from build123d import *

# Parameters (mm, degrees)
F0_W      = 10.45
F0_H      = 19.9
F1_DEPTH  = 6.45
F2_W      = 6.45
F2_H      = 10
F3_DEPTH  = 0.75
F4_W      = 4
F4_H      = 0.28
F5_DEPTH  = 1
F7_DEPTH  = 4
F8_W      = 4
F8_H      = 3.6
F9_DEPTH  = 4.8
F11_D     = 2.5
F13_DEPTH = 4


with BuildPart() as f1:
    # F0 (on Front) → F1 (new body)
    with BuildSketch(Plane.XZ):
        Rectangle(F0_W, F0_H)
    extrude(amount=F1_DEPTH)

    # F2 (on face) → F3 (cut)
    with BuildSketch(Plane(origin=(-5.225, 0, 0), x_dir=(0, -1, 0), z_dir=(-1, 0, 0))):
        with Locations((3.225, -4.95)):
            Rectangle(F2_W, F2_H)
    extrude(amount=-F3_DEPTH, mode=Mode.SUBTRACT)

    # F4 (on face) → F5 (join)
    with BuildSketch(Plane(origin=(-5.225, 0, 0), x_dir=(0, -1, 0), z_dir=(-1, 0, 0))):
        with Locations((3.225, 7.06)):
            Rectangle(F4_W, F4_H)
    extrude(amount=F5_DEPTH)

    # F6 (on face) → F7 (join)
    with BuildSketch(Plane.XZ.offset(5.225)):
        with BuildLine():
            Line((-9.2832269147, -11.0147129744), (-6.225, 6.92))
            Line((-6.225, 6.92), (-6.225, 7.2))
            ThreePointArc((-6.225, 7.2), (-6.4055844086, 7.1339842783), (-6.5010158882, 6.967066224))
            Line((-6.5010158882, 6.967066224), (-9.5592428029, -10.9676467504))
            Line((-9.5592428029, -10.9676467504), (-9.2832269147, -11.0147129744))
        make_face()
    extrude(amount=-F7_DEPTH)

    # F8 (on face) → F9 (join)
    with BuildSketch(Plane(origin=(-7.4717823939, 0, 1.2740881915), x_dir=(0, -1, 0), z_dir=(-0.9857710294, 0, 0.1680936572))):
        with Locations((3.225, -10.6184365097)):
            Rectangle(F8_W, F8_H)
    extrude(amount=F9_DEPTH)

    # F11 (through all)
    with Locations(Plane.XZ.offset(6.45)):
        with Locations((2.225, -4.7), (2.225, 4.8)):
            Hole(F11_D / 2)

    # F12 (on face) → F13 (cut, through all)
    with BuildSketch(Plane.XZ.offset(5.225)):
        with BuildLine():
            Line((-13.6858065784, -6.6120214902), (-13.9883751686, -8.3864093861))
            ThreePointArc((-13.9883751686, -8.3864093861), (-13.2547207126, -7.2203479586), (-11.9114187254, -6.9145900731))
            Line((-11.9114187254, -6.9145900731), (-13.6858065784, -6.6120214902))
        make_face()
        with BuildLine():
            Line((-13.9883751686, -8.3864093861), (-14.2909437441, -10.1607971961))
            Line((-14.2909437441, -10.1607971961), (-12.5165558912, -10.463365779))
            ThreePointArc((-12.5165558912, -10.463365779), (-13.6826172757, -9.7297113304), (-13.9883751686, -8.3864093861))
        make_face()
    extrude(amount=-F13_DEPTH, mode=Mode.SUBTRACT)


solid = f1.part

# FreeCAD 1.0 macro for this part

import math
import FreeCAD as App
import Part
import Sketcher


def add_polygon(sketch, points):
    """Adds a closed chain of lines whose ends are joined by coincident constraints."""
    first, n = sketch.GeometryCount, len(points)
    for a, b in zip(points, points[1:] + points[:1]):
        sketch.addGeometry(Part.LineSegment(App.Vector(*a, 0), App.Vector(*b, 0)), False)
    for i in range(n):
        sketch.addConstraint(Sketcher.Constraint("Coincident", first + i, 2, first + (i + 1) % n, 1))

doc = App.newDocument("Part")
body = doc.addObject("PartDesign::Body", "Body")

# Sketch on XZ plane
sketch1 = body.newObject("Sketcher::SketchObject", "Sketch")
sketch1.AttachmentSupport = (doc.getObject("XZ_Plane"), [""])
sketch1.MapMode = "FlatFace"
add_polygon(sketch1, [(-5, 10), (-5, -10), (5, -10), (5, 10)])  # lines 0-3
sketch1.addConstraint([
    Sketcher.Constraint("Vertical", 0),
    Sketcher.Constraint("Horizontal", 1),
    Sketcher.Constraint("Vertical", 2),
    Sketcher.Constraint("Horizontal", 3),
    Sketcher.Constraint("Symmetric", 0, 2, 2, 2, -1, 1),
    Sketcher.Constraint("DistanceY", 0, 2, 0, 1, 19.9),
    Sketcher.Constraint("DistanceX", 1, 1, 1, 2, 10.45),
])
pad1 = body.newObject("PartDesign::Pad", "Pad")
pad1.Profile = sketch1
pad1.Length = 6.45

# Sketch on YZ plane
sketch2 = body.newObject("Sketcher::SketchObject", "Sketch001")
sketch2.AttachmentSupport = (doc.getObject("YZ_Plane"), [""])
sketch2.MapMode = "FlatFace"
sketch2.AttachmentOffset = App.Placement(App.Vector(0, 0, -5.225), App.Rotation())
add_polygon(sketch2, [(0, 0), (0, -10), (-6, -10), (-6, 0)])  # lines 0-3
sketch2.addConstraint([
    Sketcher.Constraint("Vertical", 0),
    Sketcher.Constraint("Horizontal", 1),
    Sketcher.Constraint("Vertical", 2),
    Sketcher.Constraint("Horizontal", 3),
    Sketcher.Constraint("PointOnObject", 0, 2, -2),
    Sketcher.Constraint("DistanceY", 0, 2, 0, 1, 10.0),
    Sketcher.Constraint("DistanceX", 1, 2, 1, 1, 6.45),
    Sketcher.Constraint("DistanceY", 0, 2, -1, 1, 9.95),
])
pocket1 = body.newObject("PartDesign::Pocket", "Pocket")
pocket1.Profile = sketch2
pocket1.Length = 0.75
pocket1.Reversed = True

# Sketch on YZ plane
sketch3 = body.newObject("Sketcher::SketchObject", "Sketch002")
sketch3.AttachmentSupport = (doc.getObject("YZ_Plane"), [""])
sketch3.MapMode = "FlatFace"
sketch3.AttachmentOffset = App.Placement(App.Vector(0, 0, -5.225), App.Rotation())
add_polygon(sketch3, [(-1.23, 7.2), (-1.23, 6.92), (-5.22, 6.92), (-5.22, 7.2)])  # lines 0-3
sketch3.addConstraint([
    Sketcher.Constraint("Vertical", 0),
    Sketcher.Constraint("Horizontal", 1),
    Sketcher.Constraint("Vertical", 2),
    Sketcher.Constraint("Horizontal", 3),
    Sketcher.Constraint("DistanceX", 1, 2, 1, 1, 4.0),
    Sketcher.Constraint("DistanceY", 0, 2, 0, 1, 0.28),
    Sketcher.Constraint("DistanceY", -1, 1, 2, 2, 7.2),
    Sketcher.Constraint("DistanceX", 0, 2, -1, 1, 1.225),
])
pad2 = body.newObject("PartDesign::Pad", "Pad001")
pad2.Profile = sketch3
pad2.Length = 1
pad2.Reversed = True

# Sketch on XZ plane
sketch4 = body.newObject("Sketcher::SketchObject", "Sketch003")
sketch4.AttachmentSupport = (doc.getObject("XZ_Plane"), [""])
sketch4.MapMode = "FlatFace"
sketch4.AttachmentOffset = App.Placement(App.Vector(0, 0, 5.225), App.Rotation())
sketch4.addGeometry([
    Part.LineSegment(App.Vector(-9.28, -11.01, 0), App.Vector(-6.22, 6.92, 0)),  # 0
    Part.LineSegment(App.Vector(-6.22, 6.92, 0), App.Vector(-6.22, 7.2, 0)),  # 1
    Part.ArcOfCircle(Part.Circle(App.Vector(-6.22, 6.92, 0), App.Vector(0, 0, 1), 0.28), math.radians(90), math.radians(170)),  # 2
    Part.LineSegment(App.Vector(-6.5, 6.97, 0), App.Vector(-9.56, -10.97, 0)),  # 3
    Part.LineSegment(App.Vector(-9.56, -10.97, 0), App.Vector(-9.28, -11.01, 0)),  # 4
], False)
sketch4.addConstraint([
    Sketcher.Constraint("Coincident", 0, 2, 1, 1),
    Sketcher.Constraint("Coincident", 1, 2, 2, 1),
    Sketcher.Constraint("Tangent", 2, 2, 3, 1),
    Sketcher.Constraint("Coincident", 3, 2, 4, 1),
    Sketcher.Constraint("Coincident", 4, 2, 0, 1),
    Sketcher.Constraint("Vertical", 1),
    Sketcher.Constraint("Coincident", 0, 2, 2, 3),
    Sketcher.Constraint("Parallel", 0, 3),
    Sketcher.Constraint("Perpendicular", 3, 4),
    Sketcher.Constraint("Radius", 2, 0.28),
    Sketcher.Constraint("DistanceY", -1, 1, 1, 2, 7.2),
    Sketcher.Constraint("DistanceX", 2, 3, -1, 1, 6.225),
    Sketcher.Constraint("Distance", 0, 18.193589),
    Sketcher.Constraint("DistanceX", 4, 2, 2, 2, 2.782211),
])
pad3 = body.newObject("PartDesign::Pad", "Pad002")
pad3.Profile = sketch4
pad3.Length = 4
pad3.Reversed = True

# Sketch on an angled plane
sketch5 = body.newObject("Sketcher::SketchObject", "Sketch004")
sketch5.Placement = App.Placement(App.Vector(-7.471782, 0, 1.274088), App.Rotation(App.Vector(0, -1, 0), App.Vector(0.168093657, 0, 0.985771029), App.Vector(-0.985771029, 0, 0.168093657), "ZXY"))
add_polygon(sketch5, [(1.2, -8.8), (1.2, -12.4), (5.2, -12.4), (5.2, -8.8)])  # lines 0-3
sketch5.addConstraint([
    Sketcher.Constraint("Vertical", 0),
    Sketcher.Constraint("Horizontal", 1),
    Sketcher.Constraint("Vertical", 2),
    Sketcher.Constraint("Horizontal", 3),
    Sketcher.Constraint("DistanceX", 1, 1, 1, 2, 4.0),
    Sketcher.Constraint("DistanceY", 0, 2, 0, 1, 3.6),
    Sketcher.Constraint("DistanceX", -1, 1, 0, 2, 1.225),
    Sketcher.Constraint("DistanceY", 0, 2, -1, 1, 12.418436),
])
pad4 = body.newObject("PartDesign::Pad", "Pad003")
pad4.Profile = sketch5
pad4.Length = 4.8

# Sketch on XZ plane
sketch6 = body.newObject("Sketcher::SketchObject", "Sketch005")
sketch6.AttachmentSupport = (doc.getObject("XZ_Plane"), [""])
sketch6.MapMode = "FlatFace"
sketch6.AttachmentOffset = App.Placement(App.Vector(0, 0, 6.45), App.Rotation())
sketch6.addGeometry([
    Part.Circle(App.Vector(2.2, -4.7, 0), App.Vector(0, 0, 1), 1.2),
    Part.Circle(App.Vector(2.2, 4.8, 0), App.Vector(0, 0, 1), 1.2),
], False)
sketch6.addConstraint([
    Sketcher.Constraint("Equal", 0, 1),
    Sketcher.Constraint("Vertical", 0, 3, 1, 3),
    Sketcher.Constraint("Diameter", 0, 2.5),
    Sketcher.Constraint("DistanceY", 0, 3, -1, 1, 4.7),
    Sketcher.Constraint("DistanceY", -1, 1, 1, 3, 4.8),
    Sketcher.Constraint("DistanceX", -1, 1, 0, 3, 2.225),
])
doc.recompute()
hole = body.newObject("PartDesign::Hole", "Hole")
hole.Profile = sketch6
hole.ThreadType = "None"
hole.Diameter = 2.5
hole.DepthType = "ThroughAll"

# Sketch on XZ plane
sketch7 = body.newObject("Sketcher::SketchObject", "Sketch006")
sketch7.AttachmentSupport = (doc.getObject("XZ_Plane"), [""])
sketch7.MapMode = "FlatFace"
sketch7.AttachmentOffset = App.Placement(App.Vector(0, 0, 5.225), App.Rotation())
sketch7.addGeometry([
    Part.LineSegment(App.Vector(-13.7, -6.6, 0), App.Vector(-14, -8.4, 0)),  # 0
    Part.ArcOfCircle(Part.Circle(App.Vector(-12.2, -8.7, 0), App.Vector(0, 0, 1), 1.8), math.radians(80), math.radians(170)),  # 1
    Part.LineSegment(App.Vector(-11.9, -6.9, 0), App.Vector(-13.7, -6.6, 0)),  # 2
    Part.LineSegment(App.Vector(-14, -8.4, 0), App.Vector(-14.3, -10.2, 0)),  # 3
    Part.LineSegment(App.Vector(-14.3, -10.2, 0), App.Vector(-12.5, -10.5, 0)),  # 4
    Part.ArcOfCircle(Part.Circle(App.Vector(-12.2, -8.7, 0), App.Vector(0, 0, 1), 1.8), math.radians(170), math.radians(260)),  # 5
], False)
sketch7.addConstraint([
    Sketcher.Constraint("Tangent", 0, 2, 1, 2),
    Sketcher.Constraint("Tangent", 1, 1, 2, 1),
    Sketcher.Constraint("Coincident", 2, 2, 0, 1),
    Sketcher.Constraint("Coincident", 3, 2, 4, 1),
    Sketcher.Constraint("Tangent", 4, 2, 5, 2),
    Sketcher.Constraint("Tangent", 5, 1, 3, 1),
    Sketcher.Constraint("Coincident", 5, 3, 1, 3),
    Sketcher.Constraint("Coincident", 5, 1, 0, 2),
    Sketcher.Constraint("Perpendicular", 0, 2),
    Sketcher.Constraint("Perpendicular", 3, 4),
    Sketcher.Constraint("Radius", 1, 1.8),
    Sketcher.Constraint("DistanceY", 0, 2, -1, 1, 8.386409),
    Sketcher.Constraint("DistanceX", 1, 1, -1, 1, 11.911419),
    Sketcher.Constraint("DistanceY", 1, 1, -1, 1, 6.91459),
])
pocket2 = body.newObject("PartDesign::Pocket", "Pocket001")
pocket2.Profile = sketch7
pocket2.Type = "ThroughAll"

doc.recompute()
